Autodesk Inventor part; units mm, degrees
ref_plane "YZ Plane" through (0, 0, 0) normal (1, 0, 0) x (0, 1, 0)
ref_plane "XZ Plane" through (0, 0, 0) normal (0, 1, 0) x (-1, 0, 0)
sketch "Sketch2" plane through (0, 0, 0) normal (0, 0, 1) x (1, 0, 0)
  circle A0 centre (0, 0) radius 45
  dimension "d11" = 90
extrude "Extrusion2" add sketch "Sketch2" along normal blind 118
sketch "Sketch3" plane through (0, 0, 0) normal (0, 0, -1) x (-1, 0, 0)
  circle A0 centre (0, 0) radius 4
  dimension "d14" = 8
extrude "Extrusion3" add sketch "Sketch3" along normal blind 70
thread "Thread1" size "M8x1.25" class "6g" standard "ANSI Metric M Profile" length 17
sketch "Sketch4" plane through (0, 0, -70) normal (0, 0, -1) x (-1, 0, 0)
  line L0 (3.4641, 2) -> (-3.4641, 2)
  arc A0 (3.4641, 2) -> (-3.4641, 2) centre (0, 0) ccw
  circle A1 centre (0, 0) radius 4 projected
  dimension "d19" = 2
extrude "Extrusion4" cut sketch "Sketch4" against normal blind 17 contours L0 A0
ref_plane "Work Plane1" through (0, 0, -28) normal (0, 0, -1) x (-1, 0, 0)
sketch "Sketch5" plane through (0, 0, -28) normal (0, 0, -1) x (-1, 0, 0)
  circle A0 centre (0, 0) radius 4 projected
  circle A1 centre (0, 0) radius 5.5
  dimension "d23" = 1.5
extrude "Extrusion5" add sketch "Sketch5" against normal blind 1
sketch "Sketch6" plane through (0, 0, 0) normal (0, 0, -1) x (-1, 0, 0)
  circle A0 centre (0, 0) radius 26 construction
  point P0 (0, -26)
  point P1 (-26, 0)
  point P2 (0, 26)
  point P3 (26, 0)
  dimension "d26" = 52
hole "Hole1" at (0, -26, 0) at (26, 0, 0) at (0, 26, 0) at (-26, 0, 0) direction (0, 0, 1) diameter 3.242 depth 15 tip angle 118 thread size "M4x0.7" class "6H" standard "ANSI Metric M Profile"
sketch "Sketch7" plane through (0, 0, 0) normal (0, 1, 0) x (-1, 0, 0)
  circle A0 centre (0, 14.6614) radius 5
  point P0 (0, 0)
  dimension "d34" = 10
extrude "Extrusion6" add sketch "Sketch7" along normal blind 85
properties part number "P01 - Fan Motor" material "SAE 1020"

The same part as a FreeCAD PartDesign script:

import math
import FreeCAD as App
import Part
import Sketcher

V = App.Vector

doc = App.newDocument("Part")
params = doc.addObject("Spreadsheet::Sheet", "Params")
for row, (alias, value) in enumerate([
    ("sketch1_diameter", "90 mm"),
    ("pad1_length", "118 mm"),
    ("sketch2_diameter", "8 mm"),
    ("pad2_length", "70 mm"),
    ("sketch3_radius", "4 mm"),
    ("pocket1_length", "17 mm"),
    ("sketch4_diameter", "11 mm"),
    ("sketch4_diameter2", "8 mm"),
    ("pad3_length", "1 mm"),
    ("hole_diameter", "3.242 mm"),
    ("hole_depth", "15 mm"),
    ("sketch6_diameter", "10 mm"),
    ("pad4_length", "85 mm"),
], start=1):
    params.set(f"A{row}", alias)
    params.set(f"B{row}", "=" + value)
    params.setAlias(f"B{row}", alias)

body = doc.addObject("PartDesign::Body", "Body")

# Sketch on XY plane
sketch1 = body.newObject("Sketcher::SketchObject", "Sketch")
sketch1.AttachmentSupport = (doc.getObject("XY_Plane"), [""])
sketch1.MapMode = "FlatFace"
sketch1.addGeometry(Part.Circle(V(0, 0, 0), V(0, 0, 1), 45), False)
sketch1.addConstraint(Sketcher.Constraint("Coincident", 0, 3, -1, 1))
sketch1.addConstraint(Sketcher.Constraint("Diameter", 0, 90.0))
sketch1.setExpression("Constraints[1]", "Params.sketch1_diameter")
pad1 = body.newObject("PartDesign::Pad", "Pad")
pad1.Profile = sketch1
pad1.setExpression("Length", "Params.pad1_length")

# Sketch on XY plane
sketch2 = body.newObject("Sketcher::SketchObject", "Sketch001")
sketch2.AttachmentSupport = (doc.getObject("XY_Plane"), [""])
sketch2.MapMode = "FlatFace"
sketch2.addGeometry(Part.Circle(V(0, 0, 0), V(0, 0, 1), 4), False)
sketch2.addConstraint(Sketcher.Constraint("Coincident", 0, 3, -1, 1))
sketch2.addConstraint(Sketcher.Constraint("Diameter", 0, 8.0))
sketch2.setExpression("Constraints[1]", "Params.sketch2_diameter")
pad2 = body.newObject("PartDesign::Pad", "Pad001")
pad2.Profile = sketch2
pad2.setExpression("Length", "Params.pad2_length")
pad2.Reversed = True

# Sketch on XY plane
sketch3 = body.newObject("Sketcher::SketchObject", "Sketch002")
sketch3.AttachmentSupport = (doc.getObject("XY_Plane"), [""])
sketch3.MapMode = "FlatFace"
sketch3.AttachmentOffset = App.Placement(V(0, 0, -70), App.Rotation())
sketch3.addGeometry(Part.LineSegment(V(3.5, 2, 0), V(-3.5, 2, 0)), False)
sketch3.addGeometry(Part.ArcOfCircle(Part.Circle(V(0, 0, 0), V(0, 0, 1), 4), math.radians(30), math.radians(150)), False)
sketch3.addConstraint(Sketcher.Constraint("Coincident", 0, 1, 1, 1))
sketch3.addConstraint(Sketcher.Constraint("Coincident", 1, 2, 0, 2))
sketch3.addConstraint(Sketcher.Constraint("Horizontal", 0))
sketch3.addConstraint(Sketcher.Constraint("Coincident", 1, 3, -1, 1))
sketch3.addConstraint(Sketcher.Constraint("DistanceY", -1, 1, 0, 1, 2.0))
sketch3.addConstraint(Sketcher.Constraint("Radius", 1, 4.0))
sketch3.setExpression("Constraints[5]", "Params.sketch3_radius")
pocket1 = body.newObject("PartDesign::Pocket", "Pocket")
pocket1.Profile = sketch3
pocket1.setExpression("Length", "Params.pocket1_length")
pocket1.Reversed = True

# Sketch on XY plane
sketch4 = body.newObject("Sketcher::SketchObject", "Sketch003")
sketch4.AttachmentSupport = (doc.getObject("XY_Plane"), [""])
sketch4.MapMode = "FlatFace"
sketch4.AttachmentOffset = App.Placement(V(0, 0, -28), App.Rotation())
sketch4.addGeometry(Part.Circle(V(0, 0, 0), V(0, 0, 1), 5.5), False)
sketch4.addGeometry(Part.Circle(V(0, 0, 0), V(0, 0, 1), 4), False)
sketch4.addConstraint(Sketcher.Constraint("Coincident", 0, 3, -1, 1))
sketch4.addConstraint(Sketcher.Constraint("Coincident", 1, 3, -1, 1))
sketch4.addConstraint(Sketcher.Constraint("Diameter", 0, 11.0))
sketch4.addConstraint(Sketcher.Constraint("Diameter", 1, 8.0))
sketch4.setExpression("Constraints[2]", "Params.sketch4_diameter")
sketch4.setExpression("Constraints[3]", "Params.sketch4_diameter2")
pad3 = body.newObject("PartDesign::Pad", "Pad002")
pad3.Profile = sketch4
pad3.setExpression("Length", "Params.pad3_length")

# Sketch on XY plane
sketch5 = body.newObject("Sketcher::SketchObject", "Sketch004")
sketch5.AttachmentSupport = (doc.getObject("XY_Plane"), [""])
sketch5.MapMode = "FlatFace"
sketch5.addGeometry(Part.Circle(V(0, -26, 0), V(0, 0, 1), 1.6), False)
sketch5.addGeometry(Part.Circle(V(26, 0, 0), V(0, 0, 1), 1.6), False)
sketch5.addGeometry(Part.Circle(V(0, 26, 0), V(0, 0, 1), 1.6), False)
sketch5.addGeometry(Part.Circle(V(-26, 0, 0), V(0, 0, 1), 1.6), False)
sketch5.addConstraint(Sketcher.Constraint("Equal", 0, 1))
sketch5.addConstraint(Sketcher.Constraint("Equal", 1, 2))
sketch5.addConstraint(Sketcher.Constraint("Equal", 2, 3))
sketch5.addConstraint(Sketcher.Constraint("Symmetric", 0, 3, 2, 3, -1, 1))
sketch5.addConstraint(Sketcher.Constraint("Symmetric", 1, 3, 3, 3, -1, 1))
sketch5.addConstraint(Sketcher.Constraint("PointOnObject", 0, 3, -2))
sketch5.addConstraint(Sketcher.Constraint("PointOnObject", 1, 3, -1))
sketch5.addConstraint(Sketcher.Constraint("Diameter", 0, 3.242))
sketch5.addConstraint(Sketcher.Constraint("DistanceY", 0, 3, -1, 1, 26.0))
sketch5.addConstraint(Sketcher.Constraint("DistanceX", -1, 1, 1, 3, 26.0))
doc.recompute()
hole = body.newObject("PartDesign::Hole", "Hole")
hole.Profile = sketch5
hole.ThreadType = "None"
hole.setExpression("Diameter", "Params.hole_diameter")
hole.DepthType = "Dimension"
hole.setExpression("Depth", "Params.hole_depth")
hole.DrillPoint = "Angled"
hole.DrillPointAngle = 118
hole.Reversed = True

# Sketch on XZ plane
sketch6 = body.newObject("Sketcher::SketchObject", "Sketch005")
sketch6.AttachmentSupport = (doc.getObject("XZ_Plane"), [""])
sketch6.MapMode = "FlatFace"
sketch6.addGeometry(Part.Circle(V(0, 15, 0), V(0, 0, 1), 5), False)
sketch6.addConstraint(Sketcher.Constraint("PointOnObject", 0, 3, -2))
sketch6.addConstraint(Sketcher.Constraint("Diameter", 0, 10.0))
sketch6.addConstraint(Sketcher.Constraint("DistanceY", -1, 1, 0, 3, 14.6614))
sketch6.setExpression("Constraints[1]", "Params.sketch6_diameter")
pad4 = body.newObject("PartDesign::Pad", "Pad003")
pad4.Profile = sketch6
pad4.setExpression("Length", "Params.pad4_length")
pad4.Reversed = True

doc.recompute()
